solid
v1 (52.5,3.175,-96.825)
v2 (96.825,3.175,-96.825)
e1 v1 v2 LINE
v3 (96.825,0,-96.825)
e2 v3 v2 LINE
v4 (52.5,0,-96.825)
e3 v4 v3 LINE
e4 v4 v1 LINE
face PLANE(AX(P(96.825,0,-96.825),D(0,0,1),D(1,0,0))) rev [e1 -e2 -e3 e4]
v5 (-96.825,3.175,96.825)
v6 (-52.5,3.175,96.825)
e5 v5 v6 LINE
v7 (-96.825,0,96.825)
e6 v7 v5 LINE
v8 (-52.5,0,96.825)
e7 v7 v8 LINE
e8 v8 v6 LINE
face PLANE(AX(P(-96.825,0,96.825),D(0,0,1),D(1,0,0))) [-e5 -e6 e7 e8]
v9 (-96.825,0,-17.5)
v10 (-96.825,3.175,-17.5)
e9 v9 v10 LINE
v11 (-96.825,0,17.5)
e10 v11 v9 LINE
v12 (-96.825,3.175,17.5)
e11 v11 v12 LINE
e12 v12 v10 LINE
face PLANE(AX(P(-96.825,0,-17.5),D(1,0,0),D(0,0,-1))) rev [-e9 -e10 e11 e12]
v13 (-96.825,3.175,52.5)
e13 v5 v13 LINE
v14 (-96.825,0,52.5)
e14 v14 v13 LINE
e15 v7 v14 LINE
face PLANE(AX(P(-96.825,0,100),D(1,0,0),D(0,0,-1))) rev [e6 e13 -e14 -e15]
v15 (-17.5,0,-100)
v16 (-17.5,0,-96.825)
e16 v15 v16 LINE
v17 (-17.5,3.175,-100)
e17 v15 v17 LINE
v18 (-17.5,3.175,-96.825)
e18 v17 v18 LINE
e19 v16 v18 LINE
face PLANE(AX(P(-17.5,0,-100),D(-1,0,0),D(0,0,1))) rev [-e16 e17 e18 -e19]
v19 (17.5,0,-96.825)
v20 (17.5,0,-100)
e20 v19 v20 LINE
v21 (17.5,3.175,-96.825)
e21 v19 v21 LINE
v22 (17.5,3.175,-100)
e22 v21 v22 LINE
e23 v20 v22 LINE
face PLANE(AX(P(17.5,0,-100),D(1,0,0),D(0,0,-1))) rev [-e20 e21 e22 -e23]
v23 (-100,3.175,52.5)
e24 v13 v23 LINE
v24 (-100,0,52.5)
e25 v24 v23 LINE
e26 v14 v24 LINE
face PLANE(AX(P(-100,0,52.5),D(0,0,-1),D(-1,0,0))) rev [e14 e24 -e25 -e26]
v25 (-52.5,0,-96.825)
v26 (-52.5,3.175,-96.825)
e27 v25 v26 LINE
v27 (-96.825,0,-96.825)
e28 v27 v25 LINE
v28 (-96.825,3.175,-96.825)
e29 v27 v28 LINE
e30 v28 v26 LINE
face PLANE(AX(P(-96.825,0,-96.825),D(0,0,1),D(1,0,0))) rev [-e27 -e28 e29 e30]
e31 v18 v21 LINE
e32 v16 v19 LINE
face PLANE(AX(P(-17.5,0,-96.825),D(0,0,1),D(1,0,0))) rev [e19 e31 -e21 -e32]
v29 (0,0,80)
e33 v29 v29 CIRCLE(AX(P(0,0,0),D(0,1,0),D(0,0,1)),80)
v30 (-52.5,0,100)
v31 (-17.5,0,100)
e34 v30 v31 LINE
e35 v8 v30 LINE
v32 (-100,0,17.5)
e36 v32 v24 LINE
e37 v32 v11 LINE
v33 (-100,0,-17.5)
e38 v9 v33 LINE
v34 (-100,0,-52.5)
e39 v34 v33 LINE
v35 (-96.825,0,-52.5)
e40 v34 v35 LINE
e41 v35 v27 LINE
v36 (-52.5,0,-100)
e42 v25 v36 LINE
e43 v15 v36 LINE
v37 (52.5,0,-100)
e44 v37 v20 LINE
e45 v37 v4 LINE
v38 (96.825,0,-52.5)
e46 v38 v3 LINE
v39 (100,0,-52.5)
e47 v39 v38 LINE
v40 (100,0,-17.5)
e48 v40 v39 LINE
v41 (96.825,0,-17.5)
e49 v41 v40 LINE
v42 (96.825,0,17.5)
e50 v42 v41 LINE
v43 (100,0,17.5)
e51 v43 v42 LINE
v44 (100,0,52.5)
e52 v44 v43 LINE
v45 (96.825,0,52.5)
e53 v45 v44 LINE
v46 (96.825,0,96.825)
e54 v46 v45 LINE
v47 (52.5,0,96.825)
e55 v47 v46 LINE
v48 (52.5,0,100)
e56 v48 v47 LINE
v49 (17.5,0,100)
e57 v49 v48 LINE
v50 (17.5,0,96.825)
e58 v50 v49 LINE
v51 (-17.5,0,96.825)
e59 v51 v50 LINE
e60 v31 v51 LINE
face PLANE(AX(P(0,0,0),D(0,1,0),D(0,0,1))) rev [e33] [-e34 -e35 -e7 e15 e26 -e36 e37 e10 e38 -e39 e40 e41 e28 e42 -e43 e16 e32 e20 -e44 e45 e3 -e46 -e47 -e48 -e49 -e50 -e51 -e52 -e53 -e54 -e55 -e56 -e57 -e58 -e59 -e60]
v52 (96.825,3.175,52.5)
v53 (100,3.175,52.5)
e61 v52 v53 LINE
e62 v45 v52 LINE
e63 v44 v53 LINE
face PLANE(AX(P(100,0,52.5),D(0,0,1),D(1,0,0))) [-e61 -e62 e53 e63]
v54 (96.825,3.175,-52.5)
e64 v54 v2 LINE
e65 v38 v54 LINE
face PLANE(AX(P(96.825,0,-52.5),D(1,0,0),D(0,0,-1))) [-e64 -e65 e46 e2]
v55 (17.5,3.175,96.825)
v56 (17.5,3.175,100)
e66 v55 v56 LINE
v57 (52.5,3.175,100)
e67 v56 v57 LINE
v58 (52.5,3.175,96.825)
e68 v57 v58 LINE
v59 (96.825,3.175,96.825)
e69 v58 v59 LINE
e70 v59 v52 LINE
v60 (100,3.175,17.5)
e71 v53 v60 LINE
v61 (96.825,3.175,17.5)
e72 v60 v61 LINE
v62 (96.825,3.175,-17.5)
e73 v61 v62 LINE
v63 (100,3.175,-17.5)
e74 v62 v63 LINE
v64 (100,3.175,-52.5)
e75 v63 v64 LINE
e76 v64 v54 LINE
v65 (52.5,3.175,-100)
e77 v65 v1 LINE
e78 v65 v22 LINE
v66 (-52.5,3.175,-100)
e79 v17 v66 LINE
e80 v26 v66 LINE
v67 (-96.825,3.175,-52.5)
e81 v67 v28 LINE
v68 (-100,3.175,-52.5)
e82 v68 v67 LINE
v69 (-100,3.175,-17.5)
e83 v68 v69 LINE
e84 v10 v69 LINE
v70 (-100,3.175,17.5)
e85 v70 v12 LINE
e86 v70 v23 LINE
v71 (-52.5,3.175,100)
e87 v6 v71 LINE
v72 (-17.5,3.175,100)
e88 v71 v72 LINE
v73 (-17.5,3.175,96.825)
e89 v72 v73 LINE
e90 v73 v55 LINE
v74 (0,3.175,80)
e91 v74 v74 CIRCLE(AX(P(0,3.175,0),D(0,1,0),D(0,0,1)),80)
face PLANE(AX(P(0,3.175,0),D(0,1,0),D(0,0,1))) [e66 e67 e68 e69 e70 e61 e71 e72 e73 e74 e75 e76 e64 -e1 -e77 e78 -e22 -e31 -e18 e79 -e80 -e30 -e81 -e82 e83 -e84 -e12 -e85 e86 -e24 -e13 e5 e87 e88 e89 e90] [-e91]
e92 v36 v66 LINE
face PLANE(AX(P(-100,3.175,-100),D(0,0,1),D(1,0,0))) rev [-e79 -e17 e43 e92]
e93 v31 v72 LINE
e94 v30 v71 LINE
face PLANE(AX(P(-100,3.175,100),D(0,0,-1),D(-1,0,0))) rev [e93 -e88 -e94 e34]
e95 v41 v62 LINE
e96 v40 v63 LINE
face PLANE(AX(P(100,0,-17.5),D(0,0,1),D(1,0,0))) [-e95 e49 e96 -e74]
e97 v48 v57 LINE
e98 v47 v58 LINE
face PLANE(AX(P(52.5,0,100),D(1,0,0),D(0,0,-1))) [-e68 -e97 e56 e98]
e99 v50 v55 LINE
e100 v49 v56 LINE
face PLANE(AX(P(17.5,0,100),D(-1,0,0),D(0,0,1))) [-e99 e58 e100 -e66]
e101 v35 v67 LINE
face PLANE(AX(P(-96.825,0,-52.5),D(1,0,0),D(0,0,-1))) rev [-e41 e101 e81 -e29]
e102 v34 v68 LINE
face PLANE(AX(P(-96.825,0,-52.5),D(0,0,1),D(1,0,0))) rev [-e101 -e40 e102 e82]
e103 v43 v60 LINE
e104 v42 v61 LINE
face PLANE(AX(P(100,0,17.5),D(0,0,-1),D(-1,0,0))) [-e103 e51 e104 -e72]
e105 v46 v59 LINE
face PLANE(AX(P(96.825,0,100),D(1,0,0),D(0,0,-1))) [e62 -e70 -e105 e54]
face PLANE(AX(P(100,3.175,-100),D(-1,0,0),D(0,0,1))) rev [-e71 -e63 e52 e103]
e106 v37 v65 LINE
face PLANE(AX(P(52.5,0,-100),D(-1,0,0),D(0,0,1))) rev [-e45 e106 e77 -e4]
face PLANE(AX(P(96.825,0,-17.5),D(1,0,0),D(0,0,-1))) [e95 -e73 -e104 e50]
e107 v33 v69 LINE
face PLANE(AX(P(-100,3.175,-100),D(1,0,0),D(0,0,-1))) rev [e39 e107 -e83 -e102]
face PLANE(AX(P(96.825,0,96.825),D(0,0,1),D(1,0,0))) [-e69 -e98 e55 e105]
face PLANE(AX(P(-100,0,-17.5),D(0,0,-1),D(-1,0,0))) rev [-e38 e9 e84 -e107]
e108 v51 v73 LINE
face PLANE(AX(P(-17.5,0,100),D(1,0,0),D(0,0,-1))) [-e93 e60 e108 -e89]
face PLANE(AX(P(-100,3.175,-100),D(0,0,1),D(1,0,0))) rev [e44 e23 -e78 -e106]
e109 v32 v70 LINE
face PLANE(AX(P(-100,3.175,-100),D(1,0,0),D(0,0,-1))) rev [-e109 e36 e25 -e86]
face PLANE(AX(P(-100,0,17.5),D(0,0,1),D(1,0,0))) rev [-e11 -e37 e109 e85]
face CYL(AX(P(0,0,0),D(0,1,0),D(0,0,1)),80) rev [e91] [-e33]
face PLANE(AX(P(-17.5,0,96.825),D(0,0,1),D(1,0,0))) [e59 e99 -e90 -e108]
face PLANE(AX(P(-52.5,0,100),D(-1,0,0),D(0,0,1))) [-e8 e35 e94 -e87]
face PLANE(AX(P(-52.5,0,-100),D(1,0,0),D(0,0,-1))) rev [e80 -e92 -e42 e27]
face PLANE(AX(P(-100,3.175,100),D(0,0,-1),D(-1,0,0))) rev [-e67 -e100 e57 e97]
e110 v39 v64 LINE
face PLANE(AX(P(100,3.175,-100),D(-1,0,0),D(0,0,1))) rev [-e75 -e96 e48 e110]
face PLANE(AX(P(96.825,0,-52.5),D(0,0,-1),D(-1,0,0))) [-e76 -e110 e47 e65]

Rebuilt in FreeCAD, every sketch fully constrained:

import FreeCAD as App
import Part
import Sketcher

V = App.Vector
Q = App.Units.Quantity


def add_polygon(sketch, points):
    """Adds a closed chain of lines whose ends are joined by coincident constraints."""
    first, n = sketch.GeometryCount, len(points)
    for a, b in zip(points, points[1:] + points[:1]):
        sketch.addGeometry(Part.LineSegment(App.Vector(*a, 0), App.Vector(*b, 0)), False)
    for i in range(n):
        sketch.addConstraint(Sketcher.Constraint("Coincident", first + i, 2, first + (i + 1) % n, 1))

doc = App.newDocument("Part")
body = doc.addObject("PartDesign::Body", "Body")

# Sketch on XZ plane
sketch1 = body.newObject("Sketcher::SketchObject", "Sketch")
sketch1.AttachmentSupport = (doc.getObject("XZ_Plane"), [""])
sketch1.MapMode = "FlatFace"
add_polygon(sketch1, [(-100, -100), (-100, 100), (100, 100), (100, -100)])  # lines 0-3
sketch1.addConstraint([
    Sketcher.Constraint("Vertical", 0),
    Sketcher.Constraint("Horizontal", 1),
    Sketcher.Constraint("Vertical", 2),
    Sketcher.Constraint("Horizontal", 3),
    Sketcher.Constraint("Symmetric", 0, 2, 2, 2, -1, 1),
    Sketcher.Constraint("Equal", 3, 0),
    Sketcher.Constraint("DistanceX", 1, 1, 1, 2, Q("200 mm")),
])
pad1 = body.newObject("PartDesign::Pad", "Pad")
pad1.Profile = sketch1
pad1.Length = 3.175
pad1.Reversed = True

# Sketch on XZ plane
sketch2 = body.newObject("Sketcher::SketchObject", "Sketch001")
sketch2.AttachmentSupport = (doc.getObject("XZ_Plane"), [""])
sketch2.MapMode = "FlatFace"
sketch2.AttachmentOffset = App.Placement(V(0, 0, -3.175), App.Rotation())
add_polygon(sketch2, [(-100, -17.5), (-100, 17.5), (-96.825, 17.5), (-96.825, -17.5)])  # lines 0-3
add_polygon(sketch2, [(-100, -100), (-100, -52.5), (-96.825, -52.5), (-96.825, -100)])  # lines 4-7
add_polygon(sketch2, [(-100, 52.5), (-100, 100), (-96.825, 100), (-96.825, 52.5)])  # lines 8-11
sketch2.addConstraint([
    Sketcher.Constraint("Vertical", 0),
    Sketcher.Constraint("Horizontal", 1),
    Sketcher.Constraint("Vertical", 2),
    Sketcher.Constraint("Horizontal", 3),
    Sketcher.Constraint("Vertical", 4),
    Sketcher.Constraint("Horizontal", 5),
    Sketcher.Constraint("Vertical", 6),
    Sketcher.Constraint("Horizontal", 7),
    Sketcher.Constraint("Vertical", 8),
    Sketcher.Constraint("Horizontal", 9),
    Sketcher.Constraint("Vertical", 10),
    Sketcher.Constraint("Horizontal", 11),
    Sketcher.Constraint("Symmetric", 7, 2, 8, 2, -1),
    Sketcher.Constraint("Symmetric", 5, 2, 10, 2, -1),
    Sketcher.Constraint("Vertical", 3, 2, 4, 2),
    Sketcher.Constraint("Vertical", 2, 2, 5, 2),
    Sketcher.Constraint("DistanceY", 0, 1, 0, 2, Q("35 mm")),
    Sketcher.Constraint("DistanceY", 4, 1, 4, 2, Q("47.5 mm")),
    Sketcher.Constraint("DistanceX", 0, 2, -1, 1, Q("100 mm")),
    Sketcher.Constraint("DistanceY", 6, 2, -1, 1, Q("100 mm")),
    Sketcher.Constraint("DistanceY", 4, 2, 3, 2, Q("35 mm")),
    Sketcher.Constraint("DistanceX", 1, 1, 1, 2, Q("3.175 mm")),
])
pocket1 = body.newObject("PartDesign::Pocket", "Pocket")
pocket1.Profile = sketch2
pocket1.Length = 3.175
pocket1.Reversed = True
doc.recompute()

mirrored = body.newObject("PartDesign::Mirrored", "Mirrored")
mirrored.Originals = [pocket1]
mirrored.MirrorPlane = (doc.getObject("YZ_Plane"), [""])
body.Tip = mirrored

# Sketch on XZ plane
sketch3 = body.newObject("Sketcher::SketchObject", "Sketch002")
sketch3.AttachmentSupport = (doc.getObject("XZ_Plane"), [""])
sketch3.MapMode = "FlatFace"
sketch3.AttachmentOffset = App.Placement(V(0, 0, -3.175), App.Rotation())
add_polygon(sketch3, [(-96.825, -100), (-96.825, -96.825), (-52.5, -96.825), (-52.5, -100)])  # lines 0-3
add_polygon(sketch3, [(-17.5, -100), (-17.5, -96.825), (17.5, -96.825), (17.5, -100)])  # lines 4-7
add_polygon(sketch3, [(52.5, -100), (52.5, -96.825), (96.825, -96.825), (96.825, -100)])  # lines 8-11
sketch3.addConstraint([
    Sketcher.Constraint("Vertical", 0),
    Sketcher.Constraint("Horizontal", 1),
    Sketcher.Constraint("Vertical", 2),
    Sketcher.Constraint("Horizontal", 3),
    Sketcher.Constraint("Vertical", 4),
    Sketcher.Constraint("Horizontal", 5),
    Sketcher.Constraint("Vertical", 6),
    Sketcher.Constraint("Horizontal", 7),
    Sketcher.Constraint("Vertical", 8),
    Sketcher.Constraint("Horizontal", 9),
    Sketcher.Constraint("Vertical", 10),
    Sketcher.Constraint("Horizontal", 11),
    Sketcher.Constraint("Symmetric", 1, 2, 8, 2, -2),
    Sketcher.Constraint("Symmetric", 3, 2, 10, 2, -2),
    Sketcher.Constraint("Horizontal", 1, 2, 4, 2),
    Sketcher.Constraint("Horizontal", 3, 2, 6, 2),
    Sketcher.Constraint("DistanceX", 5, 1, 5, 2, Q("35 mm")),
    Sketcher.Constraint("DistanceY", 2, 2, -1, 1, Q("100 mm")),
    Sketcher.Constraint("DistanceX", 1, 2, 4, 2, Q("35 mm")),
    Sketcher.Constraint("DistanceX", 5, 2, 8, 2, Q("35 mm")),
    Sketcher.Constraint("DistanceX", 1, 1, 1, 2, Q("44.325 mm")),
    Sketcher.Constraint("DistanceY", 0, 1, 0, 2, Q("3.175 mm")),
])
pocket2 = body.newObject("PartDesign::Pocket", "Pocket001")
pocket2.Profile = sketch3
pocket2.Length = 3.175
pocket2.Reversed = True
doc.recompute()

mirrored2 = body.newObject("PartDesign::Mirrored", "Mirrored001")
mirrored2.Originals = [pocket2]
mirrored2.MirrorPlane = (doc.getObject("XY_Plane"), [""])
body.Tip = mirrored2

# Sketch on XZ plane
sketch4 = body.newObject("Sketcher::SketchObject", "Sketch003")
sketch4.AttachmentSupport = (doc.getObject("XZ_Plane"), [""])
sketch4.MapMode = "FlatFace"
sketch4.AttachmentOffset = App.Placement(V(0, 0, -3.175), App.Rotation())
sketch4.addGeometry(Part.Circle(V(0, 0, 0), V(0, 0, 1), 80), False)
sketch4.addConstraint([
    Sketcher.Constraint("Coincident", 0, 3, -1, 1),
    Sketcher.Constraint("Diameter", 0, Q("160 mm")),
])
pocket3 = body.newObject("PartDesign::Pocket", "Pocket002")
pocket3.Profile = sketch4
pocket3.Length = 3.175
pocket3.Reversed = True

doc.recompute()
